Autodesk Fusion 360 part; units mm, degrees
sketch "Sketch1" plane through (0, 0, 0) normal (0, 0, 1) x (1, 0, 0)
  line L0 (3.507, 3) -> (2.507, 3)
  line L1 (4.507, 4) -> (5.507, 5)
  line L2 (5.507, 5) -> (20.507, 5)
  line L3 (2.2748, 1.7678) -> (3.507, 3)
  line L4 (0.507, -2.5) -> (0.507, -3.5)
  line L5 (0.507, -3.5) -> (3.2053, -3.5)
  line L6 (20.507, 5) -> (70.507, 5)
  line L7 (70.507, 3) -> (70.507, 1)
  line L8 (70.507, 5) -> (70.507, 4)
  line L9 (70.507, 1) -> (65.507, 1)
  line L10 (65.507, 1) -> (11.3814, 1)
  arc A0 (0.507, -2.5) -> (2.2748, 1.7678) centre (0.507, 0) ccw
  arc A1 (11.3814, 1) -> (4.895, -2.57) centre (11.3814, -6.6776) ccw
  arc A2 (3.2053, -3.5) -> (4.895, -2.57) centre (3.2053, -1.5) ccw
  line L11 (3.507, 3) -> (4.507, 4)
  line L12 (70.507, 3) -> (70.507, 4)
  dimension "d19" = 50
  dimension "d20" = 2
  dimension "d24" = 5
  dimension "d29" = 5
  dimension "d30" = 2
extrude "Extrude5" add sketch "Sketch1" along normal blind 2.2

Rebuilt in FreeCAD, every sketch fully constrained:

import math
import FreeCAD as App
import Part
import Sketcher
from FreeCAD import Vector
Q = App.Units.Quantity

doc = App.newDocument("Part")
params = doc.addObject("Spreadsheet::Sheet", "Params")
for row, (alias, value) in enumerate([
    ("sketch1_radius", "2 mm"),
    ("sketch1_radius2", "2.5 mm"),
    ("sketch1_width", "65 mm"),
    ("sketch1_height", "1 mm"),
    ("sketch1_height2", "4 mm"),
    ("pad1_length", "2.2 mm"),
], start=1):
    params.set(f"A{row}", alias)
    params.set(f"B{row}", "=" + value)
    params.setAlias(f"B{row}", alias)

body = doc.addObject("PartDesign::Body", "Body")

# Sketch on XY plane
sketch1 = body.newObject("Sketcher::SketchObject", "Sketch")
sketch1.AttachmentSupport = (doc.getObject("XY_Plane"), [""])
sketch1.MapMode = "FlatFace"
sketch1.addGeometry(Part.LineSegment(Vector(5.5, 5, 0), Vector(2.3, 1.8, 0)), False)
sketch1.addGeometry(Part.ArcOfCircle(Part.Circle(Vector(0.5, 0, 0), Vector(0, 0, 1), 2.5), math.radians(-90), math.radians(45)), False)
sketch1.addGeometry(Part.LineSegment(Vector(0.5, -2.5, 0), Vector(0.5, -3.5, 0)), False)
sketch1.addGeometry(Part.LineSegment(Vector(0.5, -3.5, 0), Vector(3.2, -3.5, 0)), False)
sketch1.addGeometry(Part.ArcOfCircle(Part.Circle(Vector(3.2, -1.5, 0), Vector(0, 0, 1), 2), math.radians(-90), math.radians(-32)), False)
sketch1.addGeometry(Part.ArcOfCircle(Part.Circle(Vector(11.4, -6.7, 0), Vector(0, 0, 1), 7.7), math.radians(90), math.radians(148)), False)
sketch1.addGeometry(Part.LineSegment(Vector(11.4, 1, 0), Vector(70.5, 1, 0)), False)
sketch1.addGeometry(Part.LineSegment(Vector(70.5, 1, 0), Vector(70.5, 5, 0)), False)
sketch1.addGeometry(Part.LineSegment(Vector(70.5, 5, 0), Vector(5.5, 5, 0)), False)
sketch1.addConstraint(Sketcher.Constraint("Coincident", 0, 2, 1, 2))
sketch1.addConstraint(Sketcher.Constraint("Coincident", 1, 1, 2, 1))
sketch1.addConstraint(Sketcher.Constraint("Coincident", 2, 2, 3, 1))
sketch1.addConstraint(Sketcher.Constraint("Tangent", 3, 2, 4, 1))
sketch1.addConstraint(Sketcher.Constraint("Tangent", 4, 2, 5, 2))
sketch1.addConstraint(Sketcher.Constraint("Tangent", 5, 1, 6, 1))
sketch1.addConstraint(Sketcher.Constraint("Coincident", 6, 2, 7, 1))
sketch1.addConstraint(Sketcher.Constraint("Coincident", 7, 2, 8, 1))
sketch1.addConstraint(Sketcher.Constraint("Coincident", 8, 2, 0, 1))
sketch1.addConstraint(Sketcher.Constraint("Vertical", 2))
sketch1.addConstraint(Sketcher.Constraint("Horizontal", 3))
sketch1.addConstraint(Sketcher.Constraint("Horizontal", 6))
sketch1.addConstraint(Sketcher.Constraint("Vertical", 7))
sketch1.addConstraint(Sketcher.Constraint("Horizontal", 8))
sketch1.addConstraint(Sketcher.Constraint("PointOnObject", 1, 3, -1))
sketch1.addConstraint(Sketcher.Constraint("Radius", 4, Q("2 mm")))
sketch1.addConstraint(Sketcher.Constraint("Radius", 1, Q("2.5 mm")))
sketch1.addConstraint(Sketcher.Constraint("DistanceY", -1, 1, 7, 2, Q("5 mm")))
sketch1.addConstraint(Sketcher.Constraint("DistanceX", 1, 3, 8, 2, Q("5 mm")))
sketch1.addConstraint(Sketcher.Constraint("DistanceX", 8, 2, 8, 1, Q("65 mm")))
sketch1.addConstraint(Sketcher.Constraint("DistanceY", 2, 2, 2, 1, Q("1 mm")))
sketch1.addConstraint(Sketcher.Constraint("DistanceY", 7, 1, 7, 2, Q("4 mm")))
sketch1.addConstraint(Sketcher.Constraint("Angle", 0, Q("-135 deg")))
sketch1.addConstraint(Sketcher.Constraint("Radius", 5, Q("7.6776 mm")))
sketch1.addConstraint(Sketcher.Constraint("DistanceX", 3, 1, 3, 2, Q("2.6983 mm")))
sketch1.addConstraint(Sketcher.Constraint("DistanceX", 6, 1, 6, 2, Q("59.1256 mm")))
sketch1.addConstraint(Sketcher.Constraint("DistanceX", -1, 1, 1, 3, Q("0.507 mm")))
sketch1.setExpression("Constraints[15]", "Params.sketch1_radius")
sketch1.setExpression("Constraints[16]", "Params.sketch1_radius2")
sketch1.setExpression("Constraints[19]", "Params.sketch1_width")
sketch1.setExpression("Constraints[20]", "Params.sketch1_height")
sketch1.setExpression("Constraints[21]", "Params.sketch1_height2")
pad1 = body.newObject("PartDesign::Pad", "Pad")
pad1.Profile = sketch1
pad1.setExpression("Length", "Params.pad1_length")

doc.recompute()
